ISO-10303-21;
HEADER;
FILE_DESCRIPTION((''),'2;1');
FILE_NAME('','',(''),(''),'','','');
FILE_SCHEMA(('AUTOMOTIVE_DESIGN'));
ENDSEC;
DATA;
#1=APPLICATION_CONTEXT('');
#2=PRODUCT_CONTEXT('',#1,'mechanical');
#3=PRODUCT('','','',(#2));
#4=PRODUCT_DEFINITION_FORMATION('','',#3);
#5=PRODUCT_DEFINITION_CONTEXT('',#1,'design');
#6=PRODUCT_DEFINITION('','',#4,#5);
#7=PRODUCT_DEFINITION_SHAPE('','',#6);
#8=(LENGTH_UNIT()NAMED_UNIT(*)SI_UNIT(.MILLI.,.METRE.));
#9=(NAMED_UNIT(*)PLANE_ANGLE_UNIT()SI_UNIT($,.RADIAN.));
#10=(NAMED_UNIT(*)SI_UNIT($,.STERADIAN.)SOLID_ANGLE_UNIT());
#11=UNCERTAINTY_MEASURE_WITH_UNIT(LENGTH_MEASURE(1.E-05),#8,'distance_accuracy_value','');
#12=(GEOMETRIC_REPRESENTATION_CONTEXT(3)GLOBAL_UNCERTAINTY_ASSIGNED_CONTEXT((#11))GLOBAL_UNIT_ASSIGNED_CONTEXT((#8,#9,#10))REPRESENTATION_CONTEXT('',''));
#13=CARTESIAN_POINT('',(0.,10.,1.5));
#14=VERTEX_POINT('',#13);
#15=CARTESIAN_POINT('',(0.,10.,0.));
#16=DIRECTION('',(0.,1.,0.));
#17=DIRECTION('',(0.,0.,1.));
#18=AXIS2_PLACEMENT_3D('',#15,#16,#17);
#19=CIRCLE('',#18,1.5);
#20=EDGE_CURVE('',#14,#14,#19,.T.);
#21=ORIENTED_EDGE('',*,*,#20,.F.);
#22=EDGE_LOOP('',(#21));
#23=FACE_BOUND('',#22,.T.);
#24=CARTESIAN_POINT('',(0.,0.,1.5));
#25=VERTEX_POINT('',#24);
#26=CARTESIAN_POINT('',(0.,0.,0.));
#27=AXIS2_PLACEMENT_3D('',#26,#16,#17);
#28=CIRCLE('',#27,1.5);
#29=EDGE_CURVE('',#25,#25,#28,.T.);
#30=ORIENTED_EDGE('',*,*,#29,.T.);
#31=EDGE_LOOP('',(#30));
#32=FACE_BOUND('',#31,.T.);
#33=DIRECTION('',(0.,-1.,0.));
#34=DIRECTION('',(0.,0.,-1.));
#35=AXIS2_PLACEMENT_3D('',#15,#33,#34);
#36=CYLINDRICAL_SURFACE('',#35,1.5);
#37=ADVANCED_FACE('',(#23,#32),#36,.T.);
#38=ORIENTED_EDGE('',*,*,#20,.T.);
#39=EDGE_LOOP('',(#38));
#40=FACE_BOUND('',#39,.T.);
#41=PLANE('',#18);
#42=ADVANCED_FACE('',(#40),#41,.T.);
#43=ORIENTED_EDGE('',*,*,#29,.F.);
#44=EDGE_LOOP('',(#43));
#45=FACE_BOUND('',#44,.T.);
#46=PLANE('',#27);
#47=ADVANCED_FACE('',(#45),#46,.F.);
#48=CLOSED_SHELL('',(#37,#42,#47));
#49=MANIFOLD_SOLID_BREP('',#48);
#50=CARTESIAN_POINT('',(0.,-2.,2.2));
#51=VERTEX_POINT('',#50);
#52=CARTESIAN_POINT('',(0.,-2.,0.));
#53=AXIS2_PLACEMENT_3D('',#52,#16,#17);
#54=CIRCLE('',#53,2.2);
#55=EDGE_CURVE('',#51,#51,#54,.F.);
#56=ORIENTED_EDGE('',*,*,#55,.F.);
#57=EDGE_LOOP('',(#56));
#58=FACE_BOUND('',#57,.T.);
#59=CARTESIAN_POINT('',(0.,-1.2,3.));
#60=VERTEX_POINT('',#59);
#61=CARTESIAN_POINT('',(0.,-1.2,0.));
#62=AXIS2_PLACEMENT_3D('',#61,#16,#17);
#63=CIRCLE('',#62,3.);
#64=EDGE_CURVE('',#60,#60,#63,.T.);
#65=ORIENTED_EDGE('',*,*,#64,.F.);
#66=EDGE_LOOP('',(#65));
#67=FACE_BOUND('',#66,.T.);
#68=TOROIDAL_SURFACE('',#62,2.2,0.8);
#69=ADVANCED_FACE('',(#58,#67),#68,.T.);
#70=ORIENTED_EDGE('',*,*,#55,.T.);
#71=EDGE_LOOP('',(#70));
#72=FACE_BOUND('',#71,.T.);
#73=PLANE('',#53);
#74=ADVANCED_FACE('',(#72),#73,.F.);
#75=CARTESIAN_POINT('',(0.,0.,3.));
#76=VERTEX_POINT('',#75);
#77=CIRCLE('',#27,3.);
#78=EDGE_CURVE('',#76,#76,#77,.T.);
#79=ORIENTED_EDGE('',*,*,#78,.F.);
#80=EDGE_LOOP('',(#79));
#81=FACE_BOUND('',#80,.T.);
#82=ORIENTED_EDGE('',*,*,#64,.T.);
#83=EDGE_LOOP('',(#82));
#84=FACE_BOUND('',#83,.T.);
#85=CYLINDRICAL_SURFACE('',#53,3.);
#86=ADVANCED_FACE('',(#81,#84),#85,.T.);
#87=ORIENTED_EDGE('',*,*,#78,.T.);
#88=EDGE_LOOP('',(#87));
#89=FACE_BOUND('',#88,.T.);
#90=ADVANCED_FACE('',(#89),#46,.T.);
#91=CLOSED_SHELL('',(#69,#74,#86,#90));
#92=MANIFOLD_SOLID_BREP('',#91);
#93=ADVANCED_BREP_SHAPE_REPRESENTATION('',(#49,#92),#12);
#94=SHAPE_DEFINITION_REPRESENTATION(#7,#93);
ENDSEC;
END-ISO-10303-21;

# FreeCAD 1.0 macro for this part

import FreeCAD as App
import Part
import Sketcher
Q = App.Units.Quantity


def edges_at(feature, points):
    """Names of the edges that pass closest to the given points."""
    edges = feature.Shape.Edges
    near = lambda p: min(range(len(edges)), key=lambda i: edges[i].distToShape(Part.Vertex(*p))[0])
    return sorted({f"Edge{near(p) + 1}" for p in points})

doc = App.newDocument("Part")
body = doc.addObject("PartDesign::Body", "Body")

# Sketch on XZ plane
sketch1 = body.newObject("Sketcher::SketchObject", "Sketch")
sketch1.AttachmentSupport = (doc.getObject("XZ_Plane"), [""])
sketch1.MapMode = "FlatFace"
sketch1.addGeometry(Part.Circle(App.Vector(0, 0, 0), App.Vector(0, 0, 1), 1.5), False)
sketch1.addConstraint(Sketcher.Constraint("Coincident", 0, 3, -1, 1))
sketch1.addConstraint(Sketcher.Constraint("Diameter", 0, Q("3 mm")))
pad1 = body.newObject("PartDesign::Pad", "Pad")
pad1.Profile = sketch1
pad1.Length = 10
pad1.Reversed = True
body2 = doc.addObject("PartDesign::Body", "Body001")

# Sketch on XZ plane
sketch2 = body2.newObject("Sketcher::SketchObject", "Sketch001")
sketch2.AttachmentSupport = (doc.getObject("XZ_Plane001"), [""])
sketch2.MapMode = "FlatFace"
sketch2.addGeometry(Part.Circle(App.Vector(0, 0, 0), App.Vector(0, 0, 1), 3), False)
sketch2.addConstraint(Sketcher.Constraint("Coincident", 0, 3, -1, 1))
sketch2.addConstraint(Sketcher.Constraint("Diameter", 0, Q("6 mm")))
pad2 = body2.newObject("PartDesign::Pad", "Pad001")
pad2.Profile = sketch2
pad2.Length = 2
doc.recompute()

fillet = body2.newObject("PartDesign::Fillet", "Fillet")
fillet.Base = (pad2, edges_at(pad2, [(0, -2, -3)]))
fillet.Radius = 0.8

doc.recompute()
